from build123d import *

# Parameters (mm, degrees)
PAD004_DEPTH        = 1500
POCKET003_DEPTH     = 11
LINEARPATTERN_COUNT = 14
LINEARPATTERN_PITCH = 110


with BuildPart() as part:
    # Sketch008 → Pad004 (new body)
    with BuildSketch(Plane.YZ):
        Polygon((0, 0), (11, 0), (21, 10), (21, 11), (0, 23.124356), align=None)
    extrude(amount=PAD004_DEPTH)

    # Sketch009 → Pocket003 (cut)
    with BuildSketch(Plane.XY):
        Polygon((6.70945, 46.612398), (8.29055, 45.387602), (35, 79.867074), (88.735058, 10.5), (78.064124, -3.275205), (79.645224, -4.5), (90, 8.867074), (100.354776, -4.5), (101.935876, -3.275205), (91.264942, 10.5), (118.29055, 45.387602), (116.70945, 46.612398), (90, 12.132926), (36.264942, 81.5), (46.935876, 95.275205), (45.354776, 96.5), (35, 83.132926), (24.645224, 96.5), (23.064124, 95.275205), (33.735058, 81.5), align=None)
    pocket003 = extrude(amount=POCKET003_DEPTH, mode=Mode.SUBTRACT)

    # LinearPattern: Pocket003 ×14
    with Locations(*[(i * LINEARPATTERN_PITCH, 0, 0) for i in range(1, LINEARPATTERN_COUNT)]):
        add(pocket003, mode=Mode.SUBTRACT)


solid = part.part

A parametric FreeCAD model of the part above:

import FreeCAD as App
import Part
import Sketcher
from FreeCAD import Vector
Q = App.Units.Quantity


def add_polygon(sketch, points):
    """Adds a closed chain of lines whose ends are joined by coincident constraints."""
    first, n = sketch.GeometryCount, len(points)
    for a, b in zip(points, points[1:] + points[:1]):
        sketch.addGeometry(Part.LineSegment(App.Vector(*a, 0), App.Vector(*b, 0)), False)
    for i in range(n):
        sketch.addConstraint(Sketcher.Constraint("Coincident", first + i, 2, first + (i + 1) % n, 1))

doc = App.newDocument("Part")
body = doc.addObject("PartDesign::Body", "Body")

# Sketch on YZ plane
sketch1 = body.newObject("Sketcher::SketchObject", "Sketch")
sketch1.AttachmentSupport = (doc.getObject("YZ_Plane"), [""])
sketch1.MapMode = "FlatFace"
add_polygon(sketch1, [(0, 0), (11, 0), (21, 10), (21, 11), (0, 23.124356)])  # lines 0-4
sketch1.addConstraint([
    Sketcher.Constraint("Horizontal", 0),
    Sketcher.Constraint("Vertical", 2),
    Sketcher.Constraint("Vertical", 4),
    Sketcher.Constraint("Coincident", 4, 2, -1, 1),
    Sketcher.Constraint("DistanceX", 0, 1, 0, 2, 11.0),
    Sketcher.Constraint("DistanceY", 2, 1, 2, 2, 1.0),
    Sketcher.Constraint("Angle", 1, Q("45 deg")),
    Sketcher.Constraint("Angle", 3, Q("149.999999 deg")),
    Sketcher.Constraint("DistanceX", -1, 1, 1, 2, 21.0),
])
pad1 = body.newObject("PartDesign::Pad", "Pad")
pad1.Profile = sketch1
pad1.Length = 1500

# Sketch on XY plane
sketch2 = body.newObject("Sketcher::SketchObject", "Sketch001")
sketch2.AttachmentSupport = (doc.getObject("XY_Plane"), [""])
sketch2.MapMode = "FlatFace"
add_polygon(sketch2, [(6.70945, 46.612398), (8.29055, 45.387602), (35, 79.867074), (88.735058, 10.5), (78.064124, -3.275205), (79.645224, -4.5), (90, 8.867074), (100.354776, -4.5), (101.935876, -3.275205), (91.264942, 10.5), (118.29055, 45.387602), (116.70945, 46.612398), (90, 12.132926), (36.264942, 81.5), (46.935876, 95.275205), (45.354776, 96.5), (35, 83.132926), (24.645224, 96.5), (23.064124, 95.275205), (33.735058, 81.5)])  # lines 0-19
sketch2.addConstraint([
    Sketcher.Constraint("Distance", 0, 2.000001),
    Sketcher.Constraint("Distance", 4, 2.0),
    Sketcher.Constraint("Distance", 7, 2.0),
    Sketcher.Constraint("Distance", 10, 2.000001),
    Sketcher.Constraint("Distance", 14, 2.0),
    Sketcher.Constraint("Distance", 17, 2.0),
    Sketcher.Constraint("DistanceX", -1, 1, 1, 2, 35.0),
    Sketcher.Constraint("DistanceX", -1, 1, 5, 2, 90.0),
    Sketcher.Constraint("DistanceX", -1, 1, 11, 2, 90.0),
    Sketcher.Constraint("DistanceX", -1, 1, 15, 2, 35.0),
    Sketcher.Constraint("DistanceY", 4, 2, 2, 2, 15.0),
    Sketcher.Constraint("DistanceY", 5, 2, 1, 2, 71.0),
    Sketcher.Constraint("DistanceY", 6, 2, 2, 2, 15.0),
    Sketcher.Constraint("DistanceY", 6, 2, 8, 2, 15.0),
    Sketcher.Constraint("DistanceY", 2, 2, 12, 2, 71.0),
    Sketcher.Constraint("DistanceY", 12, 2, 14, 2, 15.0),
    Sketcher.Constraint("DistanceY", 12, 2, 16, 2, 15.0),
    Sketcher.Constraint("DistanceY", 18, 2, 16, 2, 15.0),
    Sketcher.Constraint("DistanceY", -1, 1, 2, 2, 10.5),
    Sketcher.Constraint("DistanceX", 3, 2, 4, 2, 1.5811),
    Sketcher.Constraint("DistanceX", 6, 2, 7, 2, 1.5811),
    Sketcher.Constraint("DistanceX", 10, 2, 9, 2, 1.5811),
    Sketcher.Constraint("DistanceX", 14, 2, 13, 2, 1.5811),
    Sketcher.Constraint("DistanceX", 17, 2, 16, 2, 1.5811),
    Sketcher.Constraint("DistanceX", 19, 2, 0, 2, 1.5811),
    Sketcher.Constraint("Distance", 3, 17.424842),
    Sketcher.Constraint("Distance", 5, 16.908579),
    Sketcher.Constraint("Distance", 6, 16.908579),
    Sketcher.Constraint("Distance", 8, 17.424842),
    Sketcher.Constraint("Distance", 9, 44.130809),
    Sketcher.Constraint("Distance", 13, 17.424842),
    Sketcher.Constraint("Distance", 15, 16.908579),
    Sketcher.Constraint("Distance", 16, 16.908579),
    Sketcher.Constraint("Distance", 18, 17.424842),
    Sketcher.Constraint("Distance", 19, 44.130809),
    Sketcher.Constraint("DistanceX", -1, 1, 0, 2, 8.29055),
    Sketcher.Constraint("DistanceX", -1, 1, 9, 2, 118.29055),
    Sketcher.Constraint("DistanceX", -1, 1, 12, 2, 36.264942),
    Sketcher.Constraint("DistanceX", 0, 2, 2, 2, 80.444508),
    Sketcher.Constraint("DistanceY", 5, 2, 11, 2, 3.265852),
])
pocket1 = body.newObject("PartDesign::Pocket", "Pocket")
pocket1.Profile = sketch2
pocket1.Length = 11
pocket1.Reversed = True
doc.recompute()

linearpattern = body.newObject("PartDesign::LinearPattern", "LinearPattern")
linearpattern.Originals = [pocket1]
linearpattern.Direction = (doc.getObject("X_Axis"), [""])
linearpattern.Mode = "offset"
linearpattern.Offset = 110
linearpattern.Occurrences = 14
body.Tip = linearpattern

doc.recompute()
